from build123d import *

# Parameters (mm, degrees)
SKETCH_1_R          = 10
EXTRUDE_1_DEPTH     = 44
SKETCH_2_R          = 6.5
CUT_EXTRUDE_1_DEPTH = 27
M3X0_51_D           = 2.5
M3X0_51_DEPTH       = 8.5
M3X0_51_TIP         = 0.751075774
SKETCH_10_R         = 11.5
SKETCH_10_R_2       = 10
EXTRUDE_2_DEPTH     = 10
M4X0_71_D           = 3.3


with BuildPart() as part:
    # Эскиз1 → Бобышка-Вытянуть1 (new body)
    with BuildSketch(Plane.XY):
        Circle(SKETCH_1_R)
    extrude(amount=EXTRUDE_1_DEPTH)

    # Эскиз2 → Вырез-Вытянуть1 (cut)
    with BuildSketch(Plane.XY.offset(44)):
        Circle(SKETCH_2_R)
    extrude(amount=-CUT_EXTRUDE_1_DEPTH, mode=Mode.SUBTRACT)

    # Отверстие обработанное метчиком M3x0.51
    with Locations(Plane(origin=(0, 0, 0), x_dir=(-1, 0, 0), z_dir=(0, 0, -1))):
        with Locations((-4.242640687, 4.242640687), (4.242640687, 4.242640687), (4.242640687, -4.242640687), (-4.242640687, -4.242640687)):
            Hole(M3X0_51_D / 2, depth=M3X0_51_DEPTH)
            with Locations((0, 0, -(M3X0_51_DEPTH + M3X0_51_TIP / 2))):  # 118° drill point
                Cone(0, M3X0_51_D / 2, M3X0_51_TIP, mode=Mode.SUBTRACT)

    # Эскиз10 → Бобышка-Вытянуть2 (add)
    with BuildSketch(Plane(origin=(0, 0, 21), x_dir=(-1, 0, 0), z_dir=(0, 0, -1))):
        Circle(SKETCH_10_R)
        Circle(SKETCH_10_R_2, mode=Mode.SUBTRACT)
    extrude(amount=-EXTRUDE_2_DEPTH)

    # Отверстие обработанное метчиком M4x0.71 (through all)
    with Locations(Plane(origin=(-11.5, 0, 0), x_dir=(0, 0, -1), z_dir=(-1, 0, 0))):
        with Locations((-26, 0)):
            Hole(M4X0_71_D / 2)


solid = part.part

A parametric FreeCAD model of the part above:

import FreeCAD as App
import Part
import Sketcher
from FreeCAD import Vector

doc = App.newDocument("Part")
body = doc.addObject("PartDesign::Body", "Body")

# Sketch on XY plane
sketch1 = doc.addObject("Sketcher::SketchObject", "Sketch")
body.addObject(sketch1)
sketch1.AttachmentSupport = (doc.XY_Plane, [""])
sketch1.MapMode = "FlatFace"
sketch1.addGeometry(Part.Circle(Vector(0, 0, 0), Vector(0, 0, 1), 10), False)
sketch1.addConstraint([
    Sketcher.Constraint("Coincident", 0, 3, -1, 1),
    Sketcher.Constraint("Diameter", 0, 20.0),
])
pad1 = doc.addObject("PartDesign::Pad", "Pad")
body.addObject(pad1)
pad1.Profile = sketch1
pad1.Length = 44

# Sketch on XY plane
sketch2 = doc.addObject("Sketcher::SketchObject", "Sketch001")
body.addObject(sketch2)
sketch2.AttachmentSupport = (doc.XY_Plane, [""])
sketch2.MapMode = "FlatFace"
sketch2.AttachmentOffset = App.Placement(Vector(0, 0, 44), App.Rotation())
sketch2.addGeometry(Part.Circle(Vector(0, 0, 0), Vector(0, 0, 1), 6.5), False)
sketch2.addConstraint([
    Sketcher.Constraint("Coincident", 0, 3, -1, 1),
    Sketcher.Constraint("Diameter", 0, 13.0),
])
pocket1 = doc.addObject("PartDesign::Pocket", "Pocket")
body.addObject(pocket1)
pocket1.Profile = sketch2
pocket1.Length = 27

# Sketch on XY plane
sketch3 = doc.addObject("Sketcher::SketchObject", "Sketch002")
body.addObject(sketch3)
sketch3.AttachmentSupport = (doc.XY_Plane, [""])
sketch3.MapMode = "FlatFace"
sketch3.addGeometry([
    Part.Circle(Vector(4.242641, 4.242641, 0), Vector(0, 0, 1), 1.25),
    Part.Circle(Vector(-4.242641, 4.242641, 0), Vector(0, 0, 1), 1.25),
    Part.Circle(Vector(-4.242641, -4.242641, 0), Vector(0, 0, 1), 1.25),
    Part.Circle(Vector(4.242641, -4.242641, 0), Vector(0, 0, 1), 1.25),
], False)
sketch3.addConstraint([
    Sketcher.Constraint("Equal", 0, 1),
    Sketcher.Constraint("Equal", 1, 2),
    Sketcher.Constraint("Equal", 2, 3),
    Sketcher.Constraint("Symmetric", 0, 3, 2, 3, -1, 1),
    Sketcher.Constraint("Symmetric", 1, 3, 3, 3, -1, 1),
    Sketcher.Constraint("Symmetric", 0, 3, 1, 3, -2),
    Sketcher.Constraint("Diameter", 0, 2.5),
    Sketcher.Constraint("DistanceX", -1, 1, 0, 3, 4.242641),
    Sketcher.Constraint("DistanceY", -1, 1, 0, 3, 4.242641),
])
doc.recompute()
hole = doc.addObject("PartDesign::Hole", "Hole")
body.addObject(hole)
hole.Profile = sketch3
hole.ThreadType = "None"
hole.Diameter = 2.5
hole.DepthType = "Dimension"
hole.Depth = 8.5
hole.DrillPoint = "Angled"
hole.DrillPointAngle = 118
hole.Reversed = True

# Sketch on XY plane
sketch4 = doc.addObject("Sketcher::SketchObject", "Sketch003")
body.addObject(sketch4)
sketch4.AttachmentSupport = (doc.XY_Plane, [""])
sketch4.MapMode = "FlatFace"
sketch4.AttachmentOffset = App.Placement(Vector(0, 0, 21), App.Rotation())
sketch4.addGeometry([
    Part.Circle(Vector(0, 0, 0), Vector(0, 0, 1), 11.5),
    Part.Circle(Vector(0, 0, 0), Vector(0, 0, 1), 10),
], False)
sketch4.addConstraint([
    Sketcher.Constraint("Coincident", 0, 3, -1, 1),
    Sketcher.Constraint("Coincident", 1, 3, -1, 1),
    Sketcher.Constraint("Diameter", 0, 23.0),
    Sketcher.Constraint("Diameter", 1, 20.0),
])
pad2 = doc.addObject("PartDesign::Pad", "Pad001")
body.addObject(pad2)
pad2.Profile = sketch4
pad2.Length = 10

# Sketch on YZ plane
sketch5 = doc.addObject("Sketcher::SketchObject", "Sketch004")
body.addObject(sketch5)
sketch5.AttachmentSupport = (doc.YZ_Plane, [""])
sketch5.MapMode = "FlatFace"
sketch5.AttachmentOffset = App.Placement(Vector(0, 0, -11.5), App.Rotation())
sketch5.addGeometry(Part.Circle(Vector(0, 26, 0), Vector(0, 0, 1), 1.65), False)
sketch5.addConstraint([
    Sketcher.Constraint("PointOnObject", 0, 3, -2),
    Sketcher.Constraint("Diameter", 0, 3.3),
    Sketcher.Constraint("DistanceY", -1, 1, 0, 3, 26.0),
])
doc.recompute()
hole2 = doc.addObject("PartDesign::Hole", "Hole001")
body.addObject(hole2)
hole2.Profile = sketch5
hole2.ThreadType = "None"
hole2.Diameter = 3.3
hole2.DepthType = "ThroughAll"
hole2.Reversed = True

doc.recompute()
